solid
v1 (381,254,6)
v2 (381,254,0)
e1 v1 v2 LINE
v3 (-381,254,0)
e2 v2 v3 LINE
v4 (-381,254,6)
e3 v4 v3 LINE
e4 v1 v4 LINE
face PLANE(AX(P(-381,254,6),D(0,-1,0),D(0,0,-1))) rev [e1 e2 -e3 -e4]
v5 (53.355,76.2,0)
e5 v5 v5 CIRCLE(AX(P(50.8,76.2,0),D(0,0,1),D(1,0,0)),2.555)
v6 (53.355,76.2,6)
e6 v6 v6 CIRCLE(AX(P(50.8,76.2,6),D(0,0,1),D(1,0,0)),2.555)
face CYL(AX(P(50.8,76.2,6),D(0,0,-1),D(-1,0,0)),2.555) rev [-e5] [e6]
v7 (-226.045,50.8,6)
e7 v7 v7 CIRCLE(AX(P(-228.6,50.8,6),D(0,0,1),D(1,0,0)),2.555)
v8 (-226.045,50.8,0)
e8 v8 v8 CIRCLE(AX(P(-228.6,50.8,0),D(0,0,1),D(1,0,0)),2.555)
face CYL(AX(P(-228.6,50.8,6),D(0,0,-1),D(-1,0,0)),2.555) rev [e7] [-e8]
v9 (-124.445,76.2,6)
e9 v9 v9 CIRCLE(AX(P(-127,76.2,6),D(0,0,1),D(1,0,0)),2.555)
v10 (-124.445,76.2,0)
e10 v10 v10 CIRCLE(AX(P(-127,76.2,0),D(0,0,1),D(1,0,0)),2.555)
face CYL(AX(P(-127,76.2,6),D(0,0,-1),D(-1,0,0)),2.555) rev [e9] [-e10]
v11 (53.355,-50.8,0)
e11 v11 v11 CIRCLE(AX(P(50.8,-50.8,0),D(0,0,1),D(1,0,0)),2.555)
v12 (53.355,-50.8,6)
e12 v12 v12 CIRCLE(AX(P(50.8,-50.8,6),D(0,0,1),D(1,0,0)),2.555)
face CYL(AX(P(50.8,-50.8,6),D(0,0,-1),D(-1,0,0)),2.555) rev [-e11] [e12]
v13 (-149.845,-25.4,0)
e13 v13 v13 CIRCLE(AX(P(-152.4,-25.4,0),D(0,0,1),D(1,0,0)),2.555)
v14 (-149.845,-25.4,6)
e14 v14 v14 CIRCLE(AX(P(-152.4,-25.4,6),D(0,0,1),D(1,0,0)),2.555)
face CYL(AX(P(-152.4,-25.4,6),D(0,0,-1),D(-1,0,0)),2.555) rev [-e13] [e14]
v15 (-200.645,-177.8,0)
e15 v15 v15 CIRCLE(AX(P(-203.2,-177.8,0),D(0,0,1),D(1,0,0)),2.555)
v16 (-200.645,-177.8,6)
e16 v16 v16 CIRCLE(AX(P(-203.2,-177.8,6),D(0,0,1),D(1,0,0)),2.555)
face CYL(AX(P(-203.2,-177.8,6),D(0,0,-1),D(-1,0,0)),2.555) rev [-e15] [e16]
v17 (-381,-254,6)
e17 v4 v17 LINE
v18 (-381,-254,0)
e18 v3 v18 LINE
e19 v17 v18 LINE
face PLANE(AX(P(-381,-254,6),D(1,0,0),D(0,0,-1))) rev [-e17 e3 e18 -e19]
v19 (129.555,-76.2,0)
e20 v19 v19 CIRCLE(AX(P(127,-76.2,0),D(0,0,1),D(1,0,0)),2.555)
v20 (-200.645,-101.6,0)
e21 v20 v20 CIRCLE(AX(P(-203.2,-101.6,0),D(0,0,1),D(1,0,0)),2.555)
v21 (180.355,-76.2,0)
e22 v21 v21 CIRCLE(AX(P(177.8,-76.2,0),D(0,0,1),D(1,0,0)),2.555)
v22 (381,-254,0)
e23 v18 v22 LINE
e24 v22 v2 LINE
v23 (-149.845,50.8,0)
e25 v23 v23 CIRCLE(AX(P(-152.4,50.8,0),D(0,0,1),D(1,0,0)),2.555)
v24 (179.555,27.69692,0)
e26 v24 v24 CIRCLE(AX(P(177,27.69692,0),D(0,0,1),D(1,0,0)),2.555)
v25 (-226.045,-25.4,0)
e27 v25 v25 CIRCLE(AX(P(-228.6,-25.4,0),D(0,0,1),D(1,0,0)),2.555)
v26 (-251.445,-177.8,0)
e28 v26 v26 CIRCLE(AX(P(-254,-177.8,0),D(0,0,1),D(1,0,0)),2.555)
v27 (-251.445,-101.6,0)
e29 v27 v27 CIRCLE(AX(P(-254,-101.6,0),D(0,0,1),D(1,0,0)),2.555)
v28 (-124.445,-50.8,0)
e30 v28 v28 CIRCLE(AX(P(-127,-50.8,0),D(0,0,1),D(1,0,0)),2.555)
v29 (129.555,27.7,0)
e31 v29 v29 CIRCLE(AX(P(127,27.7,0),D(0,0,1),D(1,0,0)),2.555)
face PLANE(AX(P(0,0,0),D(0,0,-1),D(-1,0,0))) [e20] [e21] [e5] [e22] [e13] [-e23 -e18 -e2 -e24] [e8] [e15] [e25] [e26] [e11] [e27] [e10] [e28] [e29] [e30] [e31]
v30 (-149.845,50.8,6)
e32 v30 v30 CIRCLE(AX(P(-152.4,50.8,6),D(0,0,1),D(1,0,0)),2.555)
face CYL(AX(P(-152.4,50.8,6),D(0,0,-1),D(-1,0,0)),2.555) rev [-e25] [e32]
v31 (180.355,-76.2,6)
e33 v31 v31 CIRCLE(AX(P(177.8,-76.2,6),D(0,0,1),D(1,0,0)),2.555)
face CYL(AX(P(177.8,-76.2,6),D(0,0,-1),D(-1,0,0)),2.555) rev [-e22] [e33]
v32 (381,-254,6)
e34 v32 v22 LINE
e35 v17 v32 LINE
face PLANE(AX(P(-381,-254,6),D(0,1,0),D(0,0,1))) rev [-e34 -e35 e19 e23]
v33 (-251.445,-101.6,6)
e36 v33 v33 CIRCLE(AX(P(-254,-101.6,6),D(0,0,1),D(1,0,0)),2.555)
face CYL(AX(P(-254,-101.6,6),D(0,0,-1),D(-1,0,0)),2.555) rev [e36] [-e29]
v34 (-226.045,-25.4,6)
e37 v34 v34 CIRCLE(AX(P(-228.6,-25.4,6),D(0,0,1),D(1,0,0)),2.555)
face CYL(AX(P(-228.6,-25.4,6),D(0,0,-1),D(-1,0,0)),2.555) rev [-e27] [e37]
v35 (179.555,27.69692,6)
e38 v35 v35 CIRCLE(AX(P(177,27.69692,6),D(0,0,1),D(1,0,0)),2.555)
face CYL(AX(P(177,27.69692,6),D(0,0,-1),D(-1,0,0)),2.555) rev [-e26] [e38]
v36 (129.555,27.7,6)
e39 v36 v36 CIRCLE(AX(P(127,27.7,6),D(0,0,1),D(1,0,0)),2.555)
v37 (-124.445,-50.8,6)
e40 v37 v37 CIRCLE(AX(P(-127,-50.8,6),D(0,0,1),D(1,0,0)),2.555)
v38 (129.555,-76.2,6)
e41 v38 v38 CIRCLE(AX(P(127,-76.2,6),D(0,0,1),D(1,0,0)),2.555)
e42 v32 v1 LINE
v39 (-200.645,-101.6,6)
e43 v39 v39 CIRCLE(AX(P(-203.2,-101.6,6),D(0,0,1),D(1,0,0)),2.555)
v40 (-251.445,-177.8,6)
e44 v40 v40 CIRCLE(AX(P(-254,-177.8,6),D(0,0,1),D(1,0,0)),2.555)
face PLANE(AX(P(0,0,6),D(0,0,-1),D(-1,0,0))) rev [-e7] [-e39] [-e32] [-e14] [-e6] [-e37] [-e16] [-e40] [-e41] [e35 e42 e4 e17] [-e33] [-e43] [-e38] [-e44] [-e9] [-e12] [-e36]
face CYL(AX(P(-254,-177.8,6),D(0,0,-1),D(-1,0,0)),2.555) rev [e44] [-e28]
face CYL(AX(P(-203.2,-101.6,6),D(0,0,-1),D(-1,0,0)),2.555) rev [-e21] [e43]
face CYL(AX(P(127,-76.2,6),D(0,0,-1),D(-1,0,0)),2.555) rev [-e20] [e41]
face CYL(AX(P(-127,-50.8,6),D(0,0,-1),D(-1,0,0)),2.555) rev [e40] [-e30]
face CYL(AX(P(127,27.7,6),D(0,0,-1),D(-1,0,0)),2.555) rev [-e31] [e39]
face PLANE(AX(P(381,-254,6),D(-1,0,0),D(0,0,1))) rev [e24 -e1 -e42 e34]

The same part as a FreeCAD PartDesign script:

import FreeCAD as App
import Part
import Sketcher
from FreeCAD import Vector
Q = App.Units.Quantity

doc = App.newDocument("Part")
body = doc.addObject("PartDesign::Body", "Body")

# Sketch on XY plane
sketch1 = body.newObject("Sketcher::SketchObject", "Sketch")
sketch1.AttachmentSupport = (doc.getObject("XY_Plane"), [""])
sketch1.MapMode = "FlatFace"
sketch1.addGeometry(Part.LineSegment(Vector(-381, 254, 0), Vector(-381, -254, 0)), False)
sketch1.addGeometry(Part.LineSegment(Vector(-381, -254, 0), Vector(381, -254, 0)), False)
sketch1.addGeometry(Part.LineSegment(Vector(381, -254, 0), Vector(381, 254, 0)), False)
sketch1.addGeometry(Part.LineSegment(Vector(381, 254, 0), Vector(-381, 254, 0)), False)
sketch1.addGeometry(Part.Circle(Vector(-254, -177.8, 0), Vector(0, 0, 1), 2.6), False)
sketch1.addGeometry(Part.Circle(Vector(-203.2, -177.8, 0), Vector(0, 0, 1), 2.6), False)
sketch1.addGeometry(Part.Circle(Vector(-254, -101.6, 0), Vector(0, 0, 1), 2.6), False)
sketch1.addGeometry(Part.Circle(Vector(-203.2, -101.6, 0), Vector(0, 0, 1), 2.6), False)
sketch1.addGeometry(Part.Circle(Vector(127, -76.2, 0), Vector(0, 0, 1), 2.6), False)
sketch1.addGeometry(Part.Circle(Vector(177.8, -76.2, 0), Vector(0, 0, 1), 2.6), False)
sketch1.addGeometry(Part.Circle(Vector(-228.6, -25.4, 0), Vector(0, 0, 1), 2.6), False)
sketch1.addGeometry(Part.Circle(Vector(-152.4, -25.4, 0), Vector(0, 0, 1), 2.6), False)
sketch1.addGeometry(Part.Circle(Vector(-127, -50.8, 0), Vector(0, 0, 1), 2.6), False)
sketch1.addGeometry(Part.Circle(Vector(-228.6, 50.8, 0), Vector(0, 0, 1), 2.6), False)
sketch1.addGeometry(Part.Circle(Vector(-152.4, 50.8, 0), Vector(0, 0, 1), 2.6), False)
sketch1.addGeometry(Part.Circle(Vector(-127, 76.2, 0), Vector(0, 0, 1), 2.6), False)
sketch1.addGeometry(Part.Circle(Vector(50.8, -50.8, 0), Vector(0, 0, 1), 2.6), False)
sketch1.addGeometry(Part.Circle(Vector(50.8, 76.2, 0), Vector(0, 0, 1), 2.6), False)
sketch1.addGeometry(Part.Circle(Vector(127, 27.7, 0), Vector(0, 0, 1), 2.6), False)
sketch1.addGeometry(Part.Circle(Vector(177, 27.7, 0), Vector(0, 0, 1), 2.6), False)
sketch1.addConstraint(Sketcher.Constraint("Coincident", 0, 2, 1, 1))
sketch1.addConstraint(Sketcher.Constraint("Coincident", 1, 2, 2, 1))
sketch1.addConstraint(Sketcher.Constraint("Coincident", 2, 2, 3, 1))
sketch1.addConstraint(Sketcher.Constraint("Coincident", 3, 2, 0, 1))
sketch1.addConstraint(Sketcher.Constraint("Vertical", 0))
sketch1.addConstraint(Sketcher.Constraint("Horizontal", 1))
sketch1.addConstraint(Sketcher.Constraint("Vertical", 2))
sketch1.addConstraint(Sketcher.Constraint("Horizontal", 3))
sketch1.addConstraint(Sketcher.Constraint("Equal", 4, 5))
sketch1.addConstraint(Sketcher.Constraint("Equal", 5, 6))
sketch1.addConstraint(Sketcher.Constraint("Equal", 6, 7))
sketch1.addConstraint(Sketcher.Constraint("Equal", 7, 8))
sketch1.addConstraint(Sketcher.Constraint("Equal", 8, 9))
sketch1.addConstraint(Sketcher.Constraint("Equal", 9, 10))
sketch1.addConstraint(Sketcher.Constraint("Equal", 10, 11))
sketch1.addConstraint(Sketcher.Constraint("Equal", 11, 12))
sketch1.addConstraint(Sketcher.Constraint("Equal", 12, 13))
sketch1.addConstraint(Sketcher.Constraint("Equal", 13, 14))
sketch1.addConstraint(Sketcher.Constraint("Equal", 14, 15))
sketch1.addConstraint(Sketcher.Constraint("Equal", 15, 16))
sketch1.addConstraint(Sketcher.Constraint("Equal", 16, 17))
sketch1.addConstraint(Sketcher.Constraint("Equal", 17, 18))
sketch1.addConstraint(Sketcher.Constraint("Equal", 18, 19))
sketch1.addConstraint(Sketcher.Constraint("Symmetric", 8, 3, 15, 3, -1, 1))
sketch1.addConstraint(Sketcher.Constraint("Symmetric", 0, 2, 2, 2, -1, 1))
sketch1.addConstraint(Sketcher.Constraint("Horizontal", 4, 3, 5, 3))
sketch1.addConstraint(Sketcher.Constraint("Horizontal", 6, 3, 7, 3))
sketch1.addConstraint(Sketcher.Constraint("Horizontal", 8, 3, 9, 3))
sketch1.addConstraint(Sketcher.Constraint("Horizontal", 10, 3, 11, 3))
sketch1.addConstraint(Sketcher.Constraint("Horizontal", 13, 3, 14, 3))
sketch1.addConstraint(Sketcher.Constraint("Horizontal", 12, 3, 16, 3))
sketch1.addConstraint(Sketcher.Constraint("Horizontal", 15, 3, 17, 3))
sketch1.addConstraint(Sketcher.Constraint("Vertical", 4, 3, 6, 3))
sketch1.addConstraint(Sketcher.Constraint("Vertical", 5, 3, 7, 3))
sketch1.addConstraint(Sketcher.Constraint("Vertical", 10, 3, 13, 3))
sketch1.addConstraint(Sketcher.Constraint("Vertical", 11, 3, 14, 3))
sketch1.addConstraint(Sketcher.Constraint("Vertical", 12, 3, 15, 3))
sketch1.addConstraint(Sketcher.Constraint("Vertical", 16, 3, 17, 3))
sketch1.addConstraint(Sketcher.Constraint("Vertical", 8, 3, 18, 3))
sketch1.addConstraint(Sketcher.Constraint("DistanceX", 1, 1, 1, 2, Q("30 in")))
sketch1.addConstraint(Sketcher.Constraint("DistanceY", 0, 2, 0, 1, Q("20 in")))
sketch1.addConstraint(Sketcher.Constraint("DistanceX", 4, 3, -1, 1, Q("10 in")))
sketch1.addConstraint(Sketcher.Constraint("DistanceY", 4, 3, -1, 1, Q("7 in")))
sketch1.addConstraint(Sketcher.Constraint("DistanceX", 5, 3, -1, 1, Q("8 in")))
sketch1.addConstraint(Sketcher.Constraint("DistanceY", 6, 3, -1, 1, Q("4 in")))
sketch1.addConstraint(Sketcher.Constraint("DistanceX", -1, 1, 8, 3, Q("5 in")))
sketch1.addConstraint(Sketcher.Constraint("DistanceY", 8, 3, -1, 1, Q("3 in")))
sketch1.addConstraint(Sketcher.Constraint("DistanceX", -1, 1, 9, 3, Q("7 in")))
sketch1.addConstraint(Sketcher.Constraint("DistanceX", 10, 3, -1, 1, Q("9 in")))
sketch1.addConstraint(Sketcher.Constraint("DistanceY", 10, 3, -1, 1, Q("1 in")))
sketch1.addConstraint(Sketcher.Constraint("DistanceX", 11, 3, -1, 1, Q("6 in")))
sketch1.addConstraint(Sketcher.Constraint("DistanceY", 12, 3, -1, 1, Q("2 in")))
sketch1.addConstraint(Sketcher.Constraint("DistanceY", -1, 1, 13, 3, Q("2 in")))
sketch1.addConstraint(Sketcher.Constraint("DistanceX", -1, 1, 16, 3, Q("2 in")))
sketch1.addConstraint(Sketcher.Constraint("Diameter", 4, 5.11))
sketch1.addConstraint(Sketcher.Constraint("DistanceY", -1, 1, 18, 3, 27.7))
sketch1.addConstraint(Sketcher.Constraint("DistanceX", -1, 1, 19, 3, 177.0))
sketch1.addConstraint(Sketcher.Constraint("DistanceY", -1, 1, 19, 3, 27.69692))
pad1 = body.newObject("PartDesign::Pad", "Pad")
pad1.Profile = sketch1
pad1.Length = 6

doc.recompute()
